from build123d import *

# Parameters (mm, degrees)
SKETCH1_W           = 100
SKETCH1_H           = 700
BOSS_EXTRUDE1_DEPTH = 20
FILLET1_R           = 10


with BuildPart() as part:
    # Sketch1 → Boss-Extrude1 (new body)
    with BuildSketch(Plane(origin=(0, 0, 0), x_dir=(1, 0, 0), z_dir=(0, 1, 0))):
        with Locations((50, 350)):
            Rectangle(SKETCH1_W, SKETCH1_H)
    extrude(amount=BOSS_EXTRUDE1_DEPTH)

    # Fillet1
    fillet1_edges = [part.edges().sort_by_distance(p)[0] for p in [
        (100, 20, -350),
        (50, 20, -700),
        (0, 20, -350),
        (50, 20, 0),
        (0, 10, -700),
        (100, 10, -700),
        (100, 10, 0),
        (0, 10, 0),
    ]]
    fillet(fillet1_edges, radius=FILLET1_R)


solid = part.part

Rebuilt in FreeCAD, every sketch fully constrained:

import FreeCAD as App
import Part
import Sketcher

V = App.Vector


def edges_at(feature, points):
    """Names of the edges that pass closest to the given points."""
    edges = feature.Shape.Edges
    near = lambda p: min(range(len(edges)), key=lambda i: edges[i].distToShape(Part.Vertex(*p))[0])
    return sorted({f"Edge{near(p) + 1}" for p in points})

doc = App.newDocument("Part")
params = doc.addObject("Spreadsheet::Sheet", "Params")
for row, (alias, value) in enumerate([
    ("sketch1_width", "100 mm"),
    ("sketch1_height", "700 mm"),
    ("pad1_length", "20 mm"),
    ("fillet_radius", "10 mm"),
], start=1):
    params.set(f"A{row}", alias)
    params.set(f"B{row}", "=" + value)
    params.setAlias(f"B{row}", alias)

body = doc.addObject("PartDesign::Body", "Body")

# Sketch on XZ plane
sketch1 = body.newObject("Sketcher::SketchObject", "Sketch")
sketch1.AttachmentSupport = (doc.getObject("XZ_Plane"), [""])
sketch1.MapMode = "FlatFace"
sketch1.addGeometry([
    Part.LineSegment(V(0, -700, 0), V(0, 0, 0)),
    Part.LineSegment(V(0, 0, 0), V(100, 0, 0)),
    Part.LineSegment(V(100, 0, 0), V(100, -700, 0)),
    Part.LineSegment(V(100, -700, 0), V(0, -700, 0)),
], False)
sketch1.addConstraint([
    Sketcher.Constraint("Coincident", 0, 2, 1, 1),
    Sketcher.Constraint("Coincident", 1, 2, 2, 1),
    Sketcher.Constraint("Coincident", 2, 2, 3, 1),
    Sketcher.Constraint("Coincident", 3, 2, 0, 1),
    Sketcher.Constraint("Vertical", 0),
    Sketcher.Constraint("Horizontal", 1),
    Sketcher.Constraint("Vertical", 2),
    Sketcher.Constraint("Horizontal", 3),
    Sketcher.Constraint("Coincident", 0, 2, -1, 1),
    Sketcher.Constraint("DistanceX", 1, 1, 1, 2, 100.0),
    Sketcher.Constraint("DistanceY", 0, 1, 0, 2, 700.0),
])
sketch1.setExpression("Constraints[9]", "Params.sketch1_width")
sketch1.setExpression("Constraints[10]", "Params.sketch1_height")
pad1 = body.newObject("PartDesign::Pad", "Pad")
pad1.Profile = sketch1
pad1.setExpression("Length", "Params.pad1_length")
pad1.Reversed = True
doc.recompute()

fillet = body.newObject("PartDesign::Fillet", "Fillet")
fillet.Base = (pad1, edges_at(pad1, [
    (100, 20, -350),
    (50, 20, -700),
    (0, 20, -350),
    (50, 20, 0),
    (0, 10, -700),
    (100, 10, -700),
    (100, 10, 0),
    (0, 10, 0),
]))
fillet.setExpression("Radius", "Params.fillet_radius")

doc.recompute()
